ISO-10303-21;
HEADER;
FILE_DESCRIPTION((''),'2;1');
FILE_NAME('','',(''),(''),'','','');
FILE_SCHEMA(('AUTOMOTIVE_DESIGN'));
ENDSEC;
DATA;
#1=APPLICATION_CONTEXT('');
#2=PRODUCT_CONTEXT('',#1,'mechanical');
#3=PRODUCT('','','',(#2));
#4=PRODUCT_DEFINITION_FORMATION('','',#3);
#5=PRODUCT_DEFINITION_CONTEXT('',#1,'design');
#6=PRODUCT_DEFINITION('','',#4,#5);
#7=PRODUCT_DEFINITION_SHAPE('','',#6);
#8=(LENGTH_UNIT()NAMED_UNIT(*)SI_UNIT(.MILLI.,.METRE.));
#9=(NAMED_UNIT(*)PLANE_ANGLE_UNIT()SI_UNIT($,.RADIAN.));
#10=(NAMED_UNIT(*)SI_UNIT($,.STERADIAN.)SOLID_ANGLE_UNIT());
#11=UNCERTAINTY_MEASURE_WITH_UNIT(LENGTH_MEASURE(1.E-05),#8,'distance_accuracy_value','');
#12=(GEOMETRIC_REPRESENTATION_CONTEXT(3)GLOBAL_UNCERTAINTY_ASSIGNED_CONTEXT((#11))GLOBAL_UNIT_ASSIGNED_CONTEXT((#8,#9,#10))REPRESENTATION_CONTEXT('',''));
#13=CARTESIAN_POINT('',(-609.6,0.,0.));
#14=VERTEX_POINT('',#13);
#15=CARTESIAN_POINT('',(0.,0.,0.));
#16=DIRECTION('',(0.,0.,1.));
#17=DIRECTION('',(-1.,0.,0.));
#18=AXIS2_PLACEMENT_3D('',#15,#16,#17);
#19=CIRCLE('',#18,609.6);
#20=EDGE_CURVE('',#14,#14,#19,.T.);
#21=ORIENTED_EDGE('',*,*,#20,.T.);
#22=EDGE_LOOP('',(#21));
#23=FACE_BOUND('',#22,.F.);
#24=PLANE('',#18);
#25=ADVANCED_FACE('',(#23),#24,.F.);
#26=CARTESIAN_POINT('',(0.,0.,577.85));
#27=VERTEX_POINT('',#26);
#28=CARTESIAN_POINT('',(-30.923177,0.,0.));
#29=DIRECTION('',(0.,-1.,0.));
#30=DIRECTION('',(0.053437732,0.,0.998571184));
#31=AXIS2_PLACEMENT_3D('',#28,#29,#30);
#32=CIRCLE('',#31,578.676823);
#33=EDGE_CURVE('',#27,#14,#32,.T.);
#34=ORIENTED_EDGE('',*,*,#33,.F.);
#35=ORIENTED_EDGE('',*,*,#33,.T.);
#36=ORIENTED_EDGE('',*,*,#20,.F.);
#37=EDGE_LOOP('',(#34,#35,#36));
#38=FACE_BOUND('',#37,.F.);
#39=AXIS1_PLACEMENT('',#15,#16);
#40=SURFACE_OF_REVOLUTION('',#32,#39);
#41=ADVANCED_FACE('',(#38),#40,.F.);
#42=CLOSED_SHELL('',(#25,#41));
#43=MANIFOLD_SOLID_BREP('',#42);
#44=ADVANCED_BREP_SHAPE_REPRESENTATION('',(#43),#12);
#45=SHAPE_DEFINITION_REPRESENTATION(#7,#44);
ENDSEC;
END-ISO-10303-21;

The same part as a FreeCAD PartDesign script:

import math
import FreeCAD as App
import Part
import Sketcher
Q = App.Units.Quantity

doc = App.newDocument("Part")
body = doc.addObject("PartDesign::Body", "Body")

sketch1 = doc.addObject("Sketcher::SketchObject", "Sketch")
body.addObject(sketch1)
sketch1.AttachmentSupport = (doc.XZ_Plane, [""])
sketch1.MapMode = "FlatFace"
sketch1.addGeometry([
    Part.ArcOfCircle(Part.Circle(App.Vector(-30.923177, 0, 0), App.Vector(0, 0, 1), 578.676823), math.radians(86.936784), math.radians(180)),
    Part.LineSegment(App.Vector(-609.6, 0, 0), App.Vector(0, 0, 0)),
    Part.LineSegment(App.Vector(0, 0, 0), App.Vector(0, 577.85, 0)),
], False)
sketch1.addConstraint([
    Sketcher.Constraint("Coincident", 0, 2, 1, 1),
    Sketcher.Constraint("Coincident", 1, 2, 2, 1),
    Sketcher.Constraint("Coincident", 2, 2, 0, 1),
    Sketcher.Constraint("Horizontal", 1),
    Sketcher.Constraint("Vertical", 2),
    Sketcher.Constraint("Coincident", 1, 2, -1, 1),
    Sketcher.Constraint("PointOnObject", 0, 3, -1),
    Sketcher.Constraint("DistanceX", 1, 1, 1, 2, Q("24 in")),
    Sketcher.Constraint("DistanceY", 2, 1, 2, 2, Q("22.75 in")),
])
revolution = doc.addObject("PartDesign::Revolution", "Revolution")
body.addObject(revolution)
revolution.Profile = sketch1
revolution.ReferenceAxis = (sketch1, ["V_Axis"])
revolution.Angle = 360

doc.recompute()
